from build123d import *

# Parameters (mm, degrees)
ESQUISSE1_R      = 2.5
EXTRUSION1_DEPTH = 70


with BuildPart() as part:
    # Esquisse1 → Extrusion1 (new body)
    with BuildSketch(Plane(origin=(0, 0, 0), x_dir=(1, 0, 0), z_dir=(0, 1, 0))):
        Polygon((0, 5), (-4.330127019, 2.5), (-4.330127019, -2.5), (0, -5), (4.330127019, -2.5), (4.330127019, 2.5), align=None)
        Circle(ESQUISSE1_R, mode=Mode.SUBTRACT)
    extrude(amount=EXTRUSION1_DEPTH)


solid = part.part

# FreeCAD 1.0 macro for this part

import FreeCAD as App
import Part
import Sketcher
Q = App.Units.Quantity


def add_polygon(sketch, points):
    """Adds a closed chain of lines whose ends are joined by coincident constraints."""
    first, n = sketch.GeometryCount, len(points)
    for a, b in zip(points, points[1:] + points[:1]):
        sketch.addGeometry(Part.LineSegment(App.Vector(*a, 0), App.Vector(*b, 0)), False)
    for i in range(n):
        sketch.addConstraint(Sketcher.Constraint("Coincident", first + i, 2, first + (i + 1) % n, 1))

doc = App.newDocument("Part")
body = doc.addObject("PartDesign::Body", "Body")

# Sketch on XZ plane
sketch1 = doc.addObject("Sketcher::SketchObject", "Sketch")
body.addObject(sketch1)
sketch1.AttachmentSupport = (doc.XZ_Plane, [""])
sketch1.MapMode = "FlatFace"
add_polygon(sketch1, [(0, -5), (-4.3, -2.5), (-4.3, 2.5), (0, 5), (4.3, 2.5), (4.3, -2.5)])  # lines 0-5
sketch1.addGeometry(Part.Circle(App.Vector(0, 0, 0), App.Vector(0, 0, 1), 2.5), False)  # 6
sketch1.addConstraint([
    Sketcher.Constraint("Vertical", 1),
    Sketcher.Constraint("Vertical", 4),
    Sketcher.Constraint("Coincident", 6, 3, -1, 1),
    Sketcher.Constraint("Symmetric", 0, 2, 3, 2, -1, 1),
    Sketcher.Constraint("Symmetric", 2, 2, 5, 2, -1, 1),
    Sketcher.Constraint("PointOnObject", 2, 2, -2),
    Sketcher.Constraint("Parallel", 2, 5),
    Sketcher.Constraint("Horizontal", 1, 2, 3, 2),
    Sketcher.Constraint("Diameter", 6, 5.0),
    Sketcher.Constraint("DistanceY", 1, 1, 1, 2, 5.0),
    Sketcher.Constraint("Angle", 0, Q("150 deg")),
    Sketcher.Constraint("Distance", 0, 5.0),
])
pad1 = doc.addObject("PartDesign::Pad", "Pad")
body.addObject(pad1)
pad1.Profile = sketch1
pad1.Length = 70
pad1.Reversed = True

doc.recompute()
